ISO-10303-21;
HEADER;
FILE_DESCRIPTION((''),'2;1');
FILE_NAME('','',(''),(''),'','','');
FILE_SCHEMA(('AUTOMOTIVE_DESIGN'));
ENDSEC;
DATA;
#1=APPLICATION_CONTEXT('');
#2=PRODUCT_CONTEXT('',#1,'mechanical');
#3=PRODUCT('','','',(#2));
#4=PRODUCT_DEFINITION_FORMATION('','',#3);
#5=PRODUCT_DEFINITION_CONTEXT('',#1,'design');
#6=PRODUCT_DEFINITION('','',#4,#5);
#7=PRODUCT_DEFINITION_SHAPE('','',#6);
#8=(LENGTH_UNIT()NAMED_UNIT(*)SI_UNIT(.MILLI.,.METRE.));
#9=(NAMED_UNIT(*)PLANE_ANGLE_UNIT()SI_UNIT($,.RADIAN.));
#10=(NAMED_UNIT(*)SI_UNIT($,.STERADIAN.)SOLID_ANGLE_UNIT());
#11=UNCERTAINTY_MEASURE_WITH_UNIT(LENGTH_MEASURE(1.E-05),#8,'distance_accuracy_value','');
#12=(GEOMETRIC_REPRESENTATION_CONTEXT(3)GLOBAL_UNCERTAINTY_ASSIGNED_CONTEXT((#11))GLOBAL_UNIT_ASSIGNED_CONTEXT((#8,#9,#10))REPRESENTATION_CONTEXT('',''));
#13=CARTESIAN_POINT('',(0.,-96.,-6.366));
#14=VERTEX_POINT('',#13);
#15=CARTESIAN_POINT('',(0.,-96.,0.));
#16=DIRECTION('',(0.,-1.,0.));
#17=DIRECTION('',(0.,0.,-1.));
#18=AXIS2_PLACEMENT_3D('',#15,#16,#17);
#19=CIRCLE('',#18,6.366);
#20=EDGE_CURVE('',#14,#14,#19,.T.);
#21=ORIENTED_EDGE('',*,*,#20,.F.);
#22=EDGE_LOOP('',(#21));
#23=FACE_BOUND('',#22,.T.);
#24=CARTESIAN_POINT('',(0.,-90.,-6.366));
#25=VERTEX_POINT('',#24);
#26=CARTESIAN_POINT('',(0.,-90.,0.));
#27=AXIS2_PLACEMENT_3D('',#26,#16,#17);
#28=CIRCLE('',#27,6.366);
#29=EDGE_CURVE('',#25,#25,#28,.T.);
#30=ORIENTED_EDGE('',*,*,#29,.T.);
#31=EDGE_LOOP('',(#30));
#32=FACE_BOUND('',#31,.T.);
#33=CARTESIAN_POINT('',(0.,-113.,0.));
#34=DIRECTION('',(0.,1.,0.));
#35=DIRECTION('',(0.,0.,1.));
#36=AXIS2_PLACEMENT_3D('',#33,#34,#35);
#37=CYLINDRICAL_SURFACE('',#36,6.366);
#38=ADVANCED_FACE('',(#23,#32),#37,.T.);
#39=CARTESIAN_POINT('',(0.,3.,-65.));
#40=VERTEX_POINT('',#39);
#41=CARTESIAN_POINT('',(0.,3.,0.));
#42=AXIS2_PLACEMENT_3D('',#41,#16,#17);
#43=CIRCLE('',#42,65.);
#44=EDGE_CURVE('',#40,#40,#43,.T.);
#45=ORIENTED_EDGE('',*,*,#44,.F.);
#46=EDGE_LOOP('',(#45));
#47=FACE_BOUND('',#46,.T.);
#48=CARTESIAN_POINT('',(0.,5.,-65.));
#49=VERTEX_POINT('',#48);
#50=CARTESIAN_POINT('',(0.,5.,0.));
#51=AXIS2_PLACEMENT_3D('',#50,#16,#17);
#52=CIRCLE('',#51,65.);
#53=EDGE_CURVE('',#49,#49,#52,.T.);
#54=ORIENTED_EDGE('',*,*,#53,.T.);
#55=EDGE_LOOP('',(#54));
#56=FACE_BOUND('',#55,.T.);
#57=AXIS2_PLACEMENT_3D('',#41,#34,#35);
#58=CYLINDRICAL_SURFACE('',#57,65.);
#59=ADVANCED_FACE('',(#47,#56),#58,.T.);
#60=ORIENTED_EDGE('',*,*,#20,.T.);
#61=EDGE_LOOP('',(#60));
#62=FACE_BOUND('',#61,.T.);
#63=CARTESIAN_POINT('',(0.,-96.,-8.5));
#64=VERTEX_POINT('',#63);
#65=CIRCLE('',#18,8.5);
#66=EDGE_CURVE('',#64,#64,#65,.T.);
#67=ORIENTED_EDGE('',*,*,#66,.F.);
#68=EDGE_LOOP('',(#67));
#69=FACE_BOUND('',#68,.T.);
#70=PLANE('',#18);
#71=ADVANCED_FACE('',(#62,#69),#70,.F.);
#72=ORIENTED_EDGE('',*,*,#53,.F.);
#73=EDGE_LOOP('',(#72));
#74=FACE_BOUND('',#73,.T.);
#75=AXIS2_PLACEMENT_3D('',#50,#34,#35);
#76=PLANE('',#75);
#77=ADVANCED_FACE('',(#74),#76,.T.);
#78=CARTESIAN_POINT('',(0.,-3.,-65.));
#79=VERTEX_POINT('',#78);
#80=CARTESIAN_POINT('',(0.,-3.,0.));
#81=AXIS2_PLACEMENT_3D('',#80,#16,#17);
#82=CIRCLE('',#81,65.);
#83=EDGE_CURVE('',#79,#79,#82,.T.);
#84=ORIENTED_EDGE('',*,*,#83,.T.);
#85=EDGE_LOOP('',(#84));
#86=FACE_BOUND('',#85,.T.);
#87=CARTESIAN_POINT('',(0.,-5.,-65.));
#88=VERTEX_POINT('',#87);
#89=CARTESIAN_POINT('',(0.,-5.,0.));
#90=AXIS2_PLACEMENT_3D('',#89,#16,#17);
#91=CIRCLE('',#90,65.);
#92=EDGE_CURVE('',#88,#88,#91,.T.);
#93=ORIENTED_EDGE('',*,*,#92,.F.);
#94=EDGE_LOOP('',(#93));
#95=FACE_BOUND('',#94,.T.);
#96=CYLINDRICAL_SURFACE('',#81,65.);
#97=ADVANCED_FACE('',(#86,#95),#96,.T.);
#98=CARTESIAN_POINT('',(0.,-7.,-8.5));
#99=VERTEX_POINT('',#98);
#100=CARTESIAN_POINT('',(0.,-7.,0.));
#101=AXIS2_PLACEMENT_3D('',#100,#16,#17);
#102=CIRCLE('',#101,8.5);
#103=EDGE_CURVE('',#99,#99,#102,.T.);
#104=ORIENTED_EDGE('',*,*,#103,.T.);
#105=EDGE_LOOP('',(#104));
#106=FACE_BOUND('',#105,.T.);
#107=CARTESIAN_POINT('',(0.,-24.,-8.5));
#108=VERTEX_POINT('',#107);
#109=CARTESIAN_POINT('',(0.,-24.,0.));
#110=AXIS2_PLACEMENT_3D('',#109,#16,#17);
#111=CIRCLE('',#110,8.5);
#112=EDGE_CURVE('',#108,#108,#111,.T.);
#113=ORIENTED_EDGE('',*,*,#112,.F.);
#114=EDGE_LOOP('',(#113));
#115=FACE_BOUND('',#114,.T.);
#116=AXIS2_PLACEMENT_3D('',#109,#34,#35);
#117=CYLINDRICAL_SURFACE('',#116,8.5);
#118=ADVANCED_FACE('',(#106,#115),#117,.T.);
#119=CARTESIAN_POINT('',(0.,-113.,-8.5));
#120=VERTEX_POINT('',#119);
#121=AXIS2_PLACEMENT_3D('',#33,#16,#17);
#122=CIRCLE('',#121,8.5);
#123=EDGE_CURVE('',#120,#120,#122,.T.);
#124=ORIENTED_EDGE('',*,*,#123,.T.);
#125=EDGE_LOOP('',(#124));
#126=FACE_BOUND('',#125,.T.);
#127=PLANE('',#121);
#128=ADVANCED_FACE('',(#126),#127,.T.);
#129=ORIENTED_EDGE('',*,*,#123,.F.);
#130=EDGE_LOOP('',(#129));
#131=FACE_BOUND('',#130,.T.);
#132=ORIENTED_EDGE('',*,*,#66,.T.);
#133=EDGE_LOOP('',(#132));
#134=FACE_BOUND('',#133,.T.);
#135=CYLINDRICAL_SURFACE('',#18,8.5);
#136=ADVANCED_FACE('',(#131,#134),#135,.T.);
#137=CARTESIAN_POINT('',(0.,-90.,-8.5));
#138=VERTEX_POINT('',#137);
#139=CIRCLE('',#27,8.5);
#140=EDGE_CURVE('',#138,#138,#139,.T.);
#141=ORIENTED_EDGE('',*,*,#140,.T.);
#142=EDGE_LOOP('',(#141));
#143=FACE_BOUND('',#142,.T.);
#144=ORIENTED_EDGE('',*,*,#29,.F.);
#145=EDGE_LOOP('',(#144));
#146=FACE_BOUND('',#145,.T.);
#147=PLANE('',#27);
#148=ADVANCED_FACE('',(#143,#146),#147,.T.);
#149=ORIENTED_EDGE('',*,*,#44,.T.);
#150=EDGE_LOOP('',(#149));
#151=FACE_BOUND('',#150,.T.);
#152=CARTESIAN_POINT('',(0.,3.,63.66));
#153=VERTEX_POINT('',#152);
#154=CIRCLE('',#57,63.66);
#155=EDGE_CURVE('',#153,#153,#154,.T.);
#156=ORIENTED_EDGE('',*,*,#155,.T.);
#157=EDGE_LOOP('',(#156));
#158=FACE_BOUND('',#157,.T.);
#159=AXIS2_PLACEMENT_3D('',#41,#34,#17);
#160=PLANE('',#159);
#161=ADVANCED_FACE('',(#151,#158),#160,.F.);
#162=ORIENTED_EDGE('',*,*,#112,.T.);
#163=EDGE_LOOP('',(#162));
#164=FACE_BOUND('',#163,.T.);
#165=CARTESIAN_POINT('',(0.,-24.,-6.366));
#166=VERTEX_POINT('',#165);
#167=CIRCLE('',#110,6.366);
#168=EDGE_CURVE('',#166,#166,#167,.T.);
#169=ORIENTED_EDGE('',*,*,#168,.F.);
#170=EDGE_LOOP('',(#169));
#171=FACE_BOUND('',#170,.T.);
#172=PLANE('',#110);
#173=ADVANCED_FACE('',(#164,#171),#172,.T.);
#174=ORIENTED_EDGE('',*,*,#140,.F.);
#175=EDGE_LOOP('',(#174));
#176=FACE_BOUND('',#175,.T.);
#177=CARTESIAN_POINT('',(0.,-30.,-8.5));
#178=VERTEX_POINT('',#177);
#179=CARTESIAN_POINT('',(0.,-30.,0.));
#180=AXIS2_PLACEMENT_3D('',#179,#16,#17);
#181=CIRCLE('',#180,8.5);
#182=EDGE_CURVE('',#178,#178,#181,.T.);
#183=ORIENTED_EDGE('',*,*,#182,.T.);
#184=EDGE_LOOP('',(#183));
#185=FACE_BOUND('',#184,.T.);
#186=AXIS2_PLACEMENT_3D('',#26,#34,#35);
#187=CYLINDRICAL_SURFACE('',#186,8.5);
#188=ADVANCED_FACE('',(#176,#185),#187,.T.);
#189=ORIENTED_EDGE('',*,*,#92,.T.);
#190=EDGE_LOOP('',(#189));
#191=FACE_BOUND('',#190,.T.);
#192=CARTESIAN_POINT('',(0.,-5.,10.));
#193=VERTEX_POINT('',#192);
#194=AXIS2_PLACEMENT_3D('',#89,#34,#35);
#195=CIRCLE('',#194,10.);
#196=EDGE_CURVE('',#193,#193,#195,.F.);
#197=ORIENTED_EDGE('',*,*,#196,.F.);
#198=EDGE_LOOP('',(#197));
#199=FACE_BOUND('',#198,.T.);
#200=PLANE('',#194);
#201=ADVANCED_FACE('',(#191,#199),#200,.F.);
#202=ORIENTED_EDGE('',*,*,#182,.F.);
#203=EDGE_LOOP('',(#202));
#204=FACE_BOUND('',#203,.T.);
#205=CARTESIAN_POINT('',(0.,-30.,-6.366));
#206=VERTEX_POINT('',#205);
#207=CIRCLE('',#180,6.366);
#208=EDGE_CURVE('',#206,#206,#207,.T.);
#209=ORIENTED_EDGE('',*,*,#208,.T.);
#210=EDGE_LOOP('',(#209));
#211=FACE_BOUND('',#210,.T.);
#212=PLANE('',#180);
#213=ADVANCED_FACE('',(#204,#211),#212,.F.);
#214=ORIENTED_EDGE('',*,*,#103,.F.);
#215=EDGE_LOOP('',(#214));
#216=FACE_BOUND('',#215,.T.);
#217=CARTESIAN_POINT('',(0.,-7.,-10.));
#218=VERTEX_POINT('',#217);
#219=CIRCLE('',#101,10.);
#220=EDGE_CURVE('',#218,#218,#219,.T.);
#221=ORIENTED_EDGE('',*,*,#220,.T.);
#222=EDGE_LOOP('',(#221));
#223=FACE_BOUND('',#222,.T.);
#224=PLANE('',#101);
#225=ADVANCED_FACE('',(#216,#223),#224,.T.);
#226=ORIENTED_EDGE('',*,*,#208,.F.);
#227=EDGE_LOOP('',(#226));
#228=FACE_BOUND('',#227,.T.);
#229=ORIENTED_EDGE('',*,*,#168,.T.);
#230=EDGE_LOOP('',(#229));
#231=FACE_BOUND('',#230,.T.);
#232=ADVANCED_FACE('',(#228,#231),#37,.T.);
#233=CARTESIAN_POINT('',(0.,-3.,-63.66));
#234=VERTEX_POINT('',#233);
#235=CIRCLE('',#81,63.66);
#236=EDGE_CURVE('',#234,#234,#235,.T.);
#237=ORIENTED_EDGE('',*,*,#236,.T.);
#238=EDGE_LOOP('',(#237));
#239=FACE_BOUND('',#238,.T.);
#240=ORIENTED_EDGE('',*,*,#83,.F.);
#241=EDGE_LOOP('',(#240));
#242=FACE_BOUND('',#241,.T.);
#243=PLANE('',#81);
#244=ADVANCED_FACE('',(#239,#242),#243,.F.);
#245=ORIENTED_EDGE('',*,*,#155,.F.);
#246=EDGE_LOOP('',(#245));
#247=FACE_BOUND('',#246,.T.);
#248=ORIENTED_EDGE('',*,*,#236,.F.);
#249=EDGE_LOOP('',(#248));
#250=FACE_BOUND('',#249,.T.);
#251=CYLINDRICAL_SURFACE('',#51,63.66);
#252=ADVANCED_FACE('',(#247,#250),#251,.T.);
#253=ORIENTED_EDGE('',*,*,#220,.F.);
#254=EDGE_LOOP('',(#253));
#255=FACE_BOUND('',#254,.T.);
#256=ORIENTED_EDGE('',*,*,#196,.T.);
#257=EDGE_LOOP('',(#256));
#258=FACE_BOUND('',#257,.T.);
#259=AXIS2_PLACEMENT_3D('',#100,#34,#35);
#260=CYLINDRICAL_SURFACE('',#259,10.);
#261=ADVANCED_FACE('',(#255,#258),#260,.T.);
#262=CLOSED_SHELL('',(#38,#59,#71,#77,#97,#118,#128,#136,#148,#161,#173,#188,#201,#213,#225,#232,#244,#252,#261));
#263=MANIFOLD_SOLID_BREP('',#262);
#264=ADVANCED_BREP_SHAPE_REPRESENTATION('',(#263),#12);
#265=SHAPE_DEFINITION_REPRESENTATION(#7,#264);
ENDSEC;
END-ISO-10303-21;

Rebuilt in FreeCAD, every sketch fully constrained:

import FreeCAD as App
import Part
import Sketcher

doc = App.newDocument("Part")
body = doc.addObject("PartDesign::Body", "Body")

# Sketch on XZ plane
sketch1 = body.newObject("Sketcher::SketchObject", "Sketch")
sketch1.AttachmentSupport = (doc.getObject("XZ_Plane"), [""])
sketch1.MapMode = "FlatFace"
sketch1.addGeometry(Part.Circle(App.Vector(0, 0, 0), App.Vector(0, 0, 1), 64), False)
sketch1.addConstraint(Sketcher.Constraint("Coincident", 0, 3, -1, 1))
sketch1.addConstraint(Sketcher.Constraint("Diameter", 0, 127.32))
pad1 = body.newObject("PartDesign::Pad", "Pad")
pad1.Profile = sketch1
pad1.Length = 10
pad1.Midplane = True

# Sketch on XZ plane
sketch2 = body.newObject("Sketcher::SketchObject", "Sketch001")
sketch2.AttachmentSupport = (doc.getObject("XZ_Plane"), [""])
sketch2.MapMode = "FlatFace"
sketch2.AttachmentOffset = App.Placement(App.Vector(0, 0, 5), App.Rotation())
sketch2.addGeometry(Part.Circle(App.Vector(0, 0, 0), App.Vector(0, 0, 1), 65), False)
sketch2.addConstraint(Sketcher.Constraint("Coincident", 0, 3, -1, 1))
sketch2.addConstraint(Sketcher.Constraint("Diameter", 0, 130.0))
pad2 = body.newObject("PartDesign::Pad", "Pad001")
pad2.Profile = sketch2
pad2.Length = 2
pad2.Reversed = True
doc.recompute()

mirrored = body.newObject("PartDesign::Mirrored", "Mirrored")
mirrored.Originals = [pad2]
mirrored.MirrorPlane = (doc.getObject("XZ_Plane"), [""])
body.Tip = mirrored

# Sketch on XZ plane
sketch3 = body.newObject("Sketcher::SketchObject", "Sketch002")
sketch3.AttachmentSupport = (doc.getObject("XZ_Plane"), [""])
sketch3.MapMode = "FlatFace"
sketch3.AttachmentOffset = App.Placement(App.Vector(0, 0, 5), App.Rotation())
sketch3.addGeometry(Part.Circle(App.Vector(0, 0, 0), App.Vector(0, 0, 1), 6), False)
sketch3.addConstraint(Sketcher.Constraint("Coincident", 0, 3, -1, 1))
sketch3.addConstraint(Sketcher.Constraint("Diameter", 0, 12.732))
pad3 = body.newObject("PartDesign::Pad", "Pad002")
pad3.Profile = sketch3
pad3.Length = 108

# Sketch on XZ plane
sketch4 = body.newObject("Sketcher::SketchObject", "Sketch003")
sketch4.AttachmentSupport = (doc.getObject("XZ_Plane"), [""])
sketch4.MapMode = "FlatFace"
sketch4.AttachmentOffset = App.Placement(App.Vector(0, 0, 113), App.Rotation())
sketch4.addGeometry(Part.Circle(App.Vector(0, 0, 0), App.Vector(0, 0, 1), 8), False)
sketch4.addConstraint(Sketcher.Constraint("Coincident", 0, 3, -1, 1))
sketch4.addConstraint(Sketcher.Constraint("Diameter", 0, 17.0))
pad4 = body.newObject("PartDesign::Pad", "Pad003")
pad4.Profile = sketch4
pad4.Length = 17
pad4.Reversed = True

# Sketch on XZ plane
sketch5 = body.newObject("Sketcher::SketchObject", "Sketch004")
sketch5.AttachmentSupport = (doc.getObject("XZ_Plane"), [""])
sketch5.MapMode = "FlatFace"
sketch5.AttachmentOffset = App.Placement(App.Vector(0, 0, 5), App.Rotation())
sketch5.addGeometry(Part.Circle(App.Vector(0, 0, 0), App.Vector(0, 0, 1), 10), False)
sketch5.addConstraint(Sketcher.Constraint("Coincident", 0, 3, -1, 1))
sketch5.addConstraint(Sketcher.Constraint("Diameter", 0, 20.0))
pad5 = body.newObject("PartDesign::Pad", "Pad004")
pad5.Profile = sketch5
pad5.Length = 2

# Sketch on XZ plane
sketch6 = body.newObject("Sketcher::SketchObject", "Sketch005")
sketch6.AttachmentSupport = (doc.getObject("XZ_Plane"), [""])
sketch6.MapMode = "FlatFace"
sketch6.AttachmentOffset = App.Placement(App.Vector(0, 0, 24), App.Rotation())
sketch6.addGeometry(Part.Circle(App.Vector(0, 0, 0), App.Vector(0, 0, 1), 8), False)
sketch6.addConstraint(Sketcher.Constraint("Coincident", 0, 3, -1, 1))
sketch6.addConstraint(Sketcher.Constraint("Diameter", 0, 17.0))
pad6 = body.newObject("PartDesign::Pad", "Pad005")
pad6.Profile = sketch6
pad6.Length = 17
pad6.Reversed = True

# Sketch on XZ plane
sketch7 = body.newObject("Sketcher::SketchObject", "Sketch006")
sketch7.AttachmentSupport = (doc.getObject("XZ_Plane"), [""])
sketch7.MapMode = "FlatFace"
sketch7.AttachmentOffset = App.Placement(App.Vector(0, 0, 60), App.Rotation())
sketch7.addGeometry(Part.Circle(App.Vector(0, 0, 0), App.Vector(0, 0, 1), 8), False)
sketch7.addConstraint(Sketcher.Constraint("Coincident", 0, 3, -1, 1))
sketch7.addConstraint(Sketcher.Constraint("Diameter", 0, 17.0))
pad7 = body.newObject("PartDesign::Pad", "Pad006")
pad7.Profile = sketch7
pad7.Length = 60
pad7.Midplane = True

doc.recompute()
